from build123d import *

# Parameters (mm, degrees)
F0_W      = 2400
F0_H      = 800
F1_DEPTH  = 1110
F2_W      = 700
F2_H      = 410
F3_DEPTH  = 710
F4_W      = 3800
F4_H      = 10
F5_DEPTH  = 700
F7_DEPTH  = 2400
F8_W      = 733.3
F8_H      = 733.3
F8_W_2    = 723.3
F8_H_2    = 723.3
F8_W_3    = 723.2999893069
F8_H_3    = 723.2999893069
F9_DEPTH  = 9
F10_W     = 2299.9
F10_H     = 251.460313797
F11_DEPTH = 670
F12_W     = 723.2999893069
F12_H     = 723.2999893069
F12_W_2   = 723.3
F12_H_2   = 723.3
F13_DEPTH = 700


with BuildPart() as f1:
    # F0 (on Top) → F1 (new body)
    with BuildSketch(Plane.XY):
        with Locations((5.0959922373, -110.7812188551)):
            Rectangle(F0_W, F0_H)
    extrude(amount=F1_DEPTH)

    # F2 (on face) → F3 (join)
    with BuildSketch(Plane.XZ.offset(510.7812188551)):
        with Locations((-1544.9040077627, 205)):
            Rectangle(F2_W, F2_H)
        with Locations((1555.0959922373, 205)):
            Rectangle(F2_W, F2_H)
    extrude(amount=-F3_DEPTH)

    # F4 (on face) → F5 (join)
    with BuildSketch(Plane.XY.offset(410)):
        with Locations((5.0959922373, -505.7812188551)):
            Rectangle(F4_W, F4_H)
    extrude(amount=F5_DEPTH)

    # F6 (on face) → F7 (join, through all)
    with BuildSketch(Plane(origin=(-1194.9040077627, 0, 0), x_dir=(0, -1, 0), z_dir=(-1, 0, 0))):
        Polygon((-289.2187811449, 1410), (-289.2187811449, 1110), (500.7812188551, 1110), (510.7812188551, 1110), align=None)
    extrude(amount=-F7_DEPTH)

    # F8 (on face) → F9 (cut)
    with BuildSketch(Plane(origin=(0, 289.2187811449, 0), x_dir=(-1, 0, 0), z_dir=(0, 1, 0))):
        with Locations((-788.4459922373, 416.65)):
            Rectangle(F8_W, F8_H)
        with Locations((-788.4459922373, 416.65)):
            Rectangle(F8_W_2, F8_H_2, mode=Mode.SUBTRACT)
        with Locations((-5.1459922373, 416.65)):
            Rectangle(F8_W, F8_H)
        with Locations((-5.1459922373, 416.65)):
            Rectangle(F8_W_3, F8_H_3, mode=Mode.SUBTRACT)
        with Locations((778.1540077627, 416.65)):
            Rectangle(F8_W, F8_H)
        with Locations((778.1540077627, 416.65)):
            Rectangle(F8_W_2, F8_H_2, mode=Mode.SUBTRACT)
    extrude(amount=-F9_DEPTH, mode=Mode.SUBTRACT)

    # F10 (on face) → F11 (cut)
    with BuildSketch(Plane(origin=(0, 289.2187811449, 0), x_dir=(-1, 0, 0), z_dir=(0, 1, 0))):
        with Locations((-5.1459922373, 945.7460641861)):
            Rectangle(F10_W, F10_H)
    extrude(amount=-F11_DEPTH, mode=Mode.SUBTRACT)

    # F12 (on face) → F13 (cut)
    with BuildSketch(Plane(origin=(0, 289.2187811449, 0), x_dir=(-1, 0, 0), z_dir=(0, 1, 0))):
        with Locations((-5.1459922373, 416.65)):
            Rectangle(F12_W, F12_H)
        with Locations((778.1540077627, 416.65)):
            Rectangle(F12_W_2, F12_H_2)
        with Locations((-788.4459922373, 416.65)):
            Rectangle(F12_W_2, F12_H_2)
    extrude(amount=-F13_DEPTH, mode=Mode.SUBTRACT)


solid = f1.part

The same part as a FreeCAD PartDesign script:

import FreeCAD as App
import Part
import Sketcher


def add_polygon(sketch, points):
    """Adds a closed chain of lines whose ends are joined by coincident constraints."""
    first, n = sketch.GeometryCount, len(points)
    for a, b in zip(points, points[1:] + points[:1]):
        sketch.addGeometry(Part.LineSegment(App.Vector(*a, 0), App.Vector(*b, 0)), False)
    for i in range(n):
        sketch.addConstraint(Sketcher.Constraint("Coincident", first + i, 2, first + (i + 1) % n, 1))

doc = App.newDocument("Part")
body = doc.addObject("PartDesign::Body", "Body")

# Sketch on XY plane
sketch1 = doc.addObject("Sketcher::SketchObject", "Sketch")
body.addObject(sketch1)
sketch1.AttachmentSupport = (doc.XY_Plane, [""])
sketch1.MapMode = "FlatFace"
add_polygon(sketch1, [(-1195, 289), (-1195, -511), (1205, -511), (1205, 289)])  # lines 0-3
sketch1.addConstraint([
    Sketcher.Constraint("Vertical", 0),
    Sketcher.Constraint("Horizontal", 1),
    Sketcher.Constraint("Vertical", 2),
    Sketcher.Constraint("Horizontal", 3),
    Sketcher.Constraint("DistanceX", 1, 1, 1, 2, 2400.0),
    Sketcher.Constraint("DistanceY", 0, 2, 0, 1, 800.0),
    Sketcher.Constraint("DistanceY", 0, 2, -1, 1, 510.781219),
    Sketcher.Constraint("DistanceX", 0, 2, -1, 1, 1194.904008),
])
pad1 = doc.addObject("PartDesign::Pad", "Pad")
body.addObject(pad1)
pad1.Profile = sketch1
pad1.Length = 1110

# Sketch on XZ plane
sketch2 = doc.addObject("Sketcher::SketchObject", "Sketch001")
body.addObject(sketch2)
sketch2.AttachmentSupport = (doc.XZ_Plane, [""])
sketch2.MapMode = "FlatFace"
sketch2.AttachmentOffset = App.Placement(App.Vector(0, 0, 510.781219), App.Rotation())
add_polygon(sketch2, [(-1895, 410), (-1895, 0), (-1195, 0), (-1195, 410)])  # lines 0-3
add_polygon(sketch2, [(1205, 410), (1205, 0), (1905, 0), (1905, 410)])  # lines 4-7
sketch2.addConstraint([
    Sketcher.Constraint("Vertical", 0),
    Sketcher.Constraint("Horizontal", 1),
    Sketcher.Constraint("Vertical", 2),
    Sketcher.Constraint("Horizontal", 3),
    Sketcher.Constraint("Vertical", 4),
    Sketcher.Constraint("Horizontal", 5),
    Sketcher.Constraint("Vertical", 6),
    Sketcher.Constraint("Horizontal", 7),
    Sketcher.Constraint("PointOnObject", 0, 2, -1),
    Sketcher.Constraint("PointOnObject", 4, 2, -1),
    Sketcher.Constraint("Horizontal", 3, 2, 6, 2),
    Sketcher.Constraint("Equal", 3, 5),
    Sketcher.Constraint("DistanceX", 1, 1, 1, 2, 700.0),
    Sketcher.Constraint("DistanceY", 0, 2, 0, 1, 410.0),
    Sketcher.Constraint("DistanceX", 1, 2, 4, 2, 2400.0),
    Sketcher.Constraint("DistanceX", 0, 2, -1, 1, 1894.904008),
])
pad2 = doc.addObject("PartDesign::Pad", "Pad001")
body.addObject(pad2)
pad2.Profile = sketch2
pad2.Length = 710
pad2.Reversed = True

# Sketch on XY plane
sketch3 = doc.addObject("Sketcher::SketchObject", "Sketch002")
body.addObject(sketch3)
sketch3.AttachmentSupport = (doc.XY_Plane, [""])
sketch3.MapMode = "FlatFace"
sketch3.AttachmentOffset = App.Placement(App.Vector(0, 0, 410), App.Rotation())
add_polygon(sketch3, [(-1895, -501), (-1895, -511), (1905, -511), (1905, -501)])  # lines 0-3
sketch3.addConstraint([
    Sketcher.Constraint("Vertical", 0),
    Sketcher.Constraint("Horizontal", 1),
    Sketcher.Constraint("Vertical", 2),
    Sketcher.Constraint("Horizontal", 3),
    Sketcher.Constraint("DistanceX", 1, 1, 1, 2, 3800.0),
    Sketcher.Constraint("DistanceY", 0, 2, 0, 1, 10.0),
    Sketcher.Constraint("DistanceY", 0, 2, -1, 1, 510.781219),
    Sketcher.Constraint("DistanceX", 0, 2, -1, 1, 1894.904008),
])
pad3 = doc.addObject("PartDesign::Pad", "Pad002")
body.addObject(pad3)
pad3.Profile = sketch3
pad3.Length = 700

# Sketch on YZ plane
sketch4 = doc.addObject("Sketcher::SketchObject", "Sketch003")
body.addObject(sketch4)
sketch4.AttachmentSupport = (doc.YZ_Plane, [""])
sketch4.MapMode = "FlatFace"
sketch4.AttachmentOffset = App.Placement(App.Vector(0, 0, -1194.904008), App.Rotation())
add_polygon(sketch4, [(289, 1410), (289, 1110), (-511, 1110)])  # lines 0-2
sketch4.addConstraint([
    Sketcher.Constraint("Vertical", 0),
    Sketcher.Constraint("Horizontal", 1),
    Sketcher.Constraint("DistanceX", 1, 2, 1, 1, 800.0),
    Sketcher.Constraint("DistanceY", 0, 2, 0, 1, 300.0),
    Sketcher.Constraint("DistanceY", -1, 1, 0, 2, 1110.0),
    Sketcher.Constraint("DistanceX", -1, 1, 0, 2, 289.218781),
])
pad4 = doc.addObject("PartDesign::Pad", "Pad003")
body.addObject(pad4)
pad4.Profile = sketch4
pad4.Length = 2400

# Sketch on XZ plane
sketch5 = doc.addObject("Sketcher::SketchObject", "Sketch004")
body.addObject(sketch5)
sketch5.AttachmentSupport = (doc.XZ_Plane, [""])
sketch5.MapMode = "FlatFace"
sketch5.AttachmentOffset = App.Placement(App.Vector(0, 0, -289.218781), App.Rotation())
add_polygon(sketch5, [(1155, 783), (1155, 50), (422, 50), (422, 783)])  # lines 0-3
add_polygon(sketch5, [(427, 55), (1150, 55), (1150, 778), (427, 778)])  # lines 4-7
add_polygon(sketch5, [(372, 783), (372, 50), (-362, 50), (-362, 783)])  # lines 8-11
add_polygon(sketch5, [(-357, 55), (367, 55), (367, 778), (-357, 778)])  # lines 12-15
add_polygon(sketch5, [(-412, 783), (-412, 50), (-1145, 50), (-1145, 783)])  # lines 16-19
add_polygon(sketch5, [(-1140, 55), (-417, 55), (-417, 778), (-1140, 778)])  # lines 20-23
sketch5.addConstraint([
    Sketcher.Constraint("Vertical", 0),
    Sketcher.Constraint("Horizontal", 1),
    Sketcher.Constraint("Vertical", 2),
    Sketcher.Constraint("Horizontal", 3),
    Sketcher.Constraint("Horizontal", 4),
    Sketcher.Constraint("Vertical", 5),
    Sketcher.Constraint("Horizontal", 6),
    Sketcher.Constraint("Vertical", 7),
    Sketcher.Constraint("Vertical", 8),
    Sketcher.Constraint("Horizontal", 9),
    Sketcher.Constraint("Vertical", 10),
    Sketcher.Constraint("Horizontal", 11),
    Sketcher.Constraint("Horizontal", 12),
    Sketcher.Constraint("Vertical", 13),
    Sketcher.Constraint("Horizontal", 14),
    Sketcher.Constraint("Vertical", 15),
    Sketcher.Constraint("Vertical", 16),
    Sketcher.Constraint("Horizontal", 17),
    Sketcher.Constraint("Vertical", 18),
    Sketcher.Constraint("Horizontal", 19),
    Sketcher.Constraint("Horizontal", 20),
    Sketcher.Constraint("Vertical", 21),
    Sketcher.Constraint("Horizontal", 22),
    Sketcher.Constraint("Vertical", 23),
    Sketcher.Constraint("Horizontal", 1, 2, 8, 2),
    Sketcher.Constraint("Horizontal", 3, 2, 10, 2),
    Sketcher.Constraint("Horizontal", 9, 2, 16, 2),
    Sketcher.Constraint("Horizontal", 11, 2, 18, 2),
    Sketcher.Constraint("Horizontal", 7, 2, 20, 2),
    Sketcher.Constraint("Horizontal", 6, 2, 21, 2),
    Sketcher.Constraint("Equal", 3, 9),
    Sketcher.Constraint("Equal", 11, 17),
    Sketcher.Constraint("Equal", 6, 20),
    Sketcher.Constraint("Equal", 19, 0),
    Sketcher.Constraint("Equal", 22, 5),
    Sketcher.Constraint("Equal", 14, 13),
    Sketcher.Constraint("DistanceX", 1, 2, 1, 1, 733.3),
    Sketcher.Constraint("DistanceX", 4, 1, 4, 2, 723.3),
    Sketcher.Constraint("DistanceY", -1, 1, 0, 2, 50.0),
    Sketcher.Constraint("DistanceY", -1, 1, 4, 2, 55.0),
    Sketcher.Constraint("DistanceX", 4, 2, 0, 2, 5.0),
    Sketcher.Constraint("DistanceX", 8, 2, 1, 2, 50.0),
    Sketcher.Constraint("DistanceX", 16, 2, 9, 2, 50.0),
    Sketcher.Constraint("DistanceX", 20, 2, 16, 2, 5.0),
    Sketcher.Constraint("DistanceX", 12, 1, 12, 2, 723.299989),
    Sketcher.Constraint("DistanceX", -1, 1, 0, 2, 1155.095992),
    Sketcher.Constraint("DistanceX", -1, 1, 12, 2, 366.795987),
    Sketcher.Constraint("DistanceY", -1, 1, 12, 2, 55.000005),
])
pocket1 = doc.addObject("PartDesign::Pocket", "Pocket")
body.addObject(pocket1)
pocket1.Profile = sketch5
pocket1.Length = 9
pocket1.Reversed = True

# Sketch on XZ plane
sketch6 = doc.addObject("Sketcher::SketchObject", "Sketch005")
body.addObject(sketch6)
sketch6.AttachmentSupport = (doc.XZ_Plane, [""])
sketch6.MapMode = "FlatFace"
sketch6.AttachmentOffset = App.Placement(App.Vector(0, 0, -289.218781), App.Rotation())
add_polygon(sketch6, [(1155, 1071), (1155, 820), (-1145, 820), (-1145, 1071)])  # lines 0-3
sketch6.addConstraint([
    Sketcher.Constraint("Vertical", 0),
    Sketcher.Constraint("Horizontal", 1),
    Sketcher.Constraint("Vertical", 2),
    Sketcher.Constraint("Horizontal", 3),
    Sketcher.Constraint("DistanceX", 1, 2, 1, 1, 2299.9),
    Sketcher.Constraint("DistanceY", 0, 2, 0, 1, 251.460314),
    Sketcher.Constraint("DistanceY", -1, 1, 2, 2, 1071.476221),
    Sketcher.Constraint("DistanceX", -1, 1, 0, 2, 1155.095992),
])
pocket2 = doc.addObject("PartDesign::Pocket", "Pocket001")
body.addObject(pocket2)
pocket2.Profile = sketch6
pocket2.Length = 670
pocket2.Reversed = True

# Sketch on XZ plane
sketch7 = doc.addObject("Sketcher::SketchObject", "Sketch006")
body.addObject(sketch7)
sketch7.AttachmentSupport = (doc.XZ_Plane, [""])
sketch7.MapMode = "FlatFace"
sketch7.AttachmentOffset = App.Placement(App.Vector(0, 0, -289.218781), App.Rotation())
add_polygon(sketch7, [(367, 778), (367, 55), (-357, 55), (-357, 778)])  # lines 0-3
add_polygon(sketch7, [(-417, 778), (-417, 55), (-1140, 55), (-1140, 778)])  # lines 4-7
add_polygon(sketch7, [(1150, 778), (1150, 55), (427, 55), (427, 778)])  # lines 8-11
sketch7.addConstraint([
    Sketcher.Constraint("Vertical", 0),
    Sketcher.Constraint("Horizontal", 1),
    Sketcher.Constraint("Vertical", 2),
    Sketcher.Constraint("Horizontal", 3),
    Sketcher.Constraint("Vertical", 4),
    Sketcher.Constraint("Horizontal", 5),
    Sketcher.Constraint("Vertical", 6),
    Sketcher.Constraint("Horizontal", 7),
    Sketcher.Constraint("Vertical", 8),
    Sketcher.Constraint("Horizontal", 9),
    Sketcher.Constraint("Vertical", 10),
    Sketcher.Constraint("Horizontal", 11),
    Sketcher.Constraint("Horizontal", 5, 2, 8, 2),
    Sketcher.Constraint("Horizontal", 7, 2, 10, 2),
    Sketcher.Constraint("Equal", 7, 9),
    Sketcher.Constraint("Equal", 3, 0),
    Sketcher.Constraint("Equal", 11, 4),
    Sketcher.Constraint("DistanceX", 5, 2, 5, 1, 723.3),
    Sketcher.Constraint("DistanceY", -1, 1, 4, 2, 55.0),
    Sketcher.Constraint("DistanceX", 4, 2, 8, 2, 1566.6),
    Sketcher.Constraint("DistanceX", 1, 2, 1, 1, 723.299989),
    Sketcher.Constraint("DistanceX", -1, 1, 0, 2, 366.795987),
    Sketcher.Constraint("DistanceY", -1, 1, 0, 2, 55.000005),
    Sketcher.Constraint("DistanceX", 4, 2, -1, 1, 416.504008),
])
pocket3 = doc.addObject("PartDesign::Pocket", "Pocket002")
body.addObject(pocket3)
pocket3.Profile = sketch7
pocket3.Length = 700
pocket3.Reversed = True

doc.recompute()
